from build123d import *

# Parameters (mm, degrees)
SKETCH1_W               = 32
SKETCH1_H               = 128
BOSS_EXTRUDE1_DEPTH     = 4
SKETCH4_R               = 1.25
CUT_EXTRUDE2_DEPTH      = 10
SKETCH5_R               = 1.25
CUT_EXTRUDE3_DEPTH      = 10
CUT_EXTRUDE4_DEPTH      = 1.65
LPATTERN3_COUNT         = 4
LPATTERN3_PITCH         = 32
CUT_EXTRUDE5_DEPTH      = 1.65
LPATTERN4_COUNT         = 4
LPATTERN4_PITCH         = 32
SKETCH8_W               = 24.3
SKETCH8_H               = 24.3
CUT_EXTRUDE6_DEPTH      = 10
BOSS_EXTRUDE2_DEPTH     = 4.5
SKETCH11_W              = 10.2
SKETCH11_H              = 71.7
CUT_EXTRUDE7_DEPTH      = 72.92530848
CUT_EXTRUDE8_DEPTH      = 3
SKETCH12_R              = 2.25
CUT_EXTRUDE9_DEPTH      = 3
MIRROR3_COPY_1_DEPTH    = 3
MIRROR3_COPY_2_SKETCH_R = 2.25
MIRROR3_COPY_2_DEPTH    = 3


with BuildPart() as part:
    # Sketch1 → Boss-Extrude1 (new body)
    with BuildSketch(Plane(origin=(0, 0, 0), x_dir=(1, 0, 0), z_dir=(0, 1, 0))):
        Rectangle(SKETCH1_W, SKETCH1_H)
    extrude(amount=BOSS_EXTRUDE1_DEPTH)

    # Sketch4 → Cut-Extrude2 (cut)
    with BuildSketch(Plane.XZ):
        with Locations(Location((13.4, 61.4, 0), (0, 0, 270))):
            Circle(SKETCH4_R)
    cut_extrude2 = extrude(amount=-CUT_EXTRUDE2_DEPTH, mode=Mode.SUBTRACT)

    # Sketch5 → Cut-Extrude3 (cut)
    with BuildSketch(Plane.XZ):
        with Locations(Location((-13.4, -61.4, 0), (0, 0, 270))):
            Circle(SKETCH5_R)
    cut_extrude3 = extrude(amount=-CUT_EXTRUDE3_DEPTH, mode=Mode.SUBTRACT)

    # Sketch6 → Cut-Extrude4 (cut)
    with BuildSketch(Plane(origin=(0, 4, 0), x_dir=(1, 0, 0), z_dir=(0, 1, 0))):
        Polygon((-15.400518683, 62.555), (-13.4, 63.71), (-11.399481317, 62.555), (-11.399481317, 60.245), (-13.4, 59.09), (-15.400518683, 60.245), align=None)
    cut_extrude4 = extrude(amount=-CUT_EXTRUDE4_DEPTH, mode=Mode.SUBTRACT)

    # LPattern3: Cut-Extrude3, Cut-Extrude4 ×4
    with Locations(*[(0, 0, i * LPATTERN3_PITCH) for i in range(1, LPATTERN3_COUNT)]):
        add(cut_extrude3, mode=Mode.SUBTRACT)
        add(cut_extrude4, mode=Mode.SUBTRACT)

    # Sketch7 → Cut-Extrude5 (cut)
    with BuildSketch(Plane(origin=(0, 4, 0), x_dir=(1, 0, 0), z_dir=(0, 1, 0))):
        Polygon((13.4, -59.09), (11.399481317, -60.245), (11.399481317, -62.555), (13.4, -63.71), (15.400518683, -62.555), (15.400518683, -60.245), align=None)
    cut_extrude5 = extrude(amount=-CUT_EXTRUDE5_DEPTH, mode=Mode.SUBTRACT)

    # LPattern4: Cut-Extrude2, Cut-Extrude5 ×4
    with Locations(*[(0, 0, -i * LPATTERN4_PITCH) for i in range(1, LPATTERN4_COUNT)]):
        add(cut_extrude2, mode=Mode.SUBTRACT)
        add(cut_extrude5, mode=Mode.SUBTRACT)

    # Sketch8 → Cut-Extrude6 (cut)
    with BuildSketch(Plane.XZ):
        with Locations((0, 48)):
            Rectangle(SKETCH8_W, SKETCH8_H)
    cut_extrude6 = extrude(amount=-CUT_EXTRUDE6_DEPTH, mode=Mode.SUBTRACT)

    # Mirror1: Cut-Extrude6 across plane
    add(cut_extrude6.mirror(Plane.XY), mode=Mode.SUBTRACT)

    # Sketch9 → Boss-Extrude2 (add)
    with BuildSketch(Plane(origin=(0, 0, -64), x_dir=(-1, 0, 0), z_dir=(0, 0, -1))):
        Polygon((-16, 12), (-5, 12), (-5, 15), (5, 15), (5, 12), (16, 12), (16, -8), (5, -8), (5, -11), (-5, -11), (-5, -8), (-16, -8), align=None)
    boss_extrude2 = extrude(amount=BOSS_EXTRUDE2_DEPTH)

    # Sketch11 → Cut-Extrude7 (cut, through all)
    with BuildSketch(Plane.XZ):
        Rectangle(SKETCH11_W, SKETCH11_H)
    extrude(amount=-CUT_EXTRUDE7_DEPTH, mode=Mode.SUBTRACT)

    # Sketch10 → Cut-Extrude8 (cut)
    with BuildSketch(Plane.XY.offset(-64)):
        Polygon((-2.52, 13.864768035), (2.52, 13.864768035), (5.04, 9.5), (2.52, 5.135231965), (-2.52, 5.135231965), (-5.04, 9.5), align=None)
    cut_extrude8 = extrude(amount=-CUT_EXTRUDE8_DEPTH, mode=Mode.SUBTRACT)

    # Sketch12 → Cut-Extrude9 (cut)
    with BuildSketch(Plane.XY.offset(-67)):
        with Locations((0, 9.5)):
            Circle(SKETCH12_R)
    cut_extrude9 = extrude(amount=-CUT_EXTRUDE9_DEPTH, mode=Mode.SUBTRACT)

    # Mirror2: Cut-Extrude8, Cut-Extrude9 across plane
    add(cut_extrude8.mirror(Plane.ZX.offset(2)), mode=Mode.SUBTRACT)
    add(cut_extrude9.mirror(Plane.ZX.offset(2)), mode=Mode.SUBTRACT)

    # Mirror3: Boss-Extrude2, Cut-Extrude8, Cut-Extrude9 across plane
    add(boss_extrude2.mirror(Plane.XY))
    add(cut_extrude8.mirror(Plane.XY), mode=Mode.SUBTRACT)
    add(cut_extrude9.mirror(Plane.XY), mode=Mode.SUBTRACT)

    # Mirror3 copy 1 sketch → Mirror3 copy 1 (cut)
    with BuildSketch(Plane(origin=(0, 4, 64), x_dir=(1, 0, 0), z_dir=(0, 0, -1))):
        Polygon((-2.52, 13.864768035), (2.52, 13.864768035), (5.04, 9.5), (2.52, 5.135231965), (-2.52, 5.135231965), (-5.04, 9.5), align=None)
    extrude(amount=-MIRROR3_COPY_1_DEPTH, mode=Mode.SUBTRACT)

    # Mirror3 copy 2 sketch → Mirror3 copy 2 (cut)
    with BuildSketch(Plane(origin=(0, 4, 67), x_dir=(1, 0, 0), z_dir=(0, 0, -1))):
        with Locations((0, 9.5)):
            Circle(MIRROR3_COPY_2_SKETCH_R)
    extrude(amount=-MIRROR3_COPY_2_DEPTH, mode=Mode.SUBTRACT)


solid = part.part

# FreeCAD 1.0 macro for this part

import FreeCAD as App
import Part
import Sketcher
from FreeCAD import Vector
Q = App.Units.Quantity


def add_polygon(sketch, points):
    """Adds a closed chain of lines whose ends are joined by coincident constraints."""
    first, n = sketch.GeometryCount, len(points)
    for a, b in zip(points, points[1:] + points[:1]):
        sketch.addGeometry(Part.LineSegment(App.Vector(*a, 0), App.Vector(*b, 0)), False)
    for i in range(n):
        sketch.addConstraint(Sketcher.Constraint("Coincident", first + i, 2, first + (i + 1) % n, 1))

doc = App.newDocument("Part")
params = doc.addObject("Spreadsheet::Sheet", "Params")
for row, (alias, value) in enumerate([
    ("sketch1_width", "32 mm"),
    ("sketch1_height", "128 mm"),
    ("pad1_length", "4 mm"),
    ("sketch2_diameter", "2.5 mm"),
    ("pocket1_length", "10 mm"),
    ("sketch3_diameter", "2.5 mm"),
    ("pocket2_length", "10 mm"),
    ("sketch4_height", "2.31 mm"),
    ("sketch4_length", "2.31 mm"),
    ("pocket3_length", "1.65 mm"),
    ("linearpattern_pitch", "32 mm"),
    ("sketch5_height", "2.31 mm"),
    ("sketch5_length", "2.31 mm"),
    ("pocket4_length", "1.65 mm"),
    ("linearpattern2_pitch", "32 mm"),
    ("sketch6_width", "24.3 mm"),
    ("pocket5_length", "10 mm"),
    ("sketch7_width", "11 mm"),
    ("sketch7_width2", "10 mm"),
    ("sketch7_height", "20 mm"),
    ("sketch7_height2", "3 mm"),
    ("pad2_length", "4.5 mm"),
    ("sketch8_width", "10.2 mm"),
    ("sketch8_height", "71.7 mm"),
    ("sketch9_width", "5.04 mm"),
    ("sketch9_length", "5.04 mm"),
    ("pocket7_length", "3 mm"),
    ("sketch10_diameter", "4.5 mm"),
    ("pocket8_length", "3 mm"),
    ("sketch11_width", "5.04 mm"),
    ("sketch11_length", "5.04 mm"),
    ("pocket9_length", "3 mm"),
    ("sketch12_diameter", "4.5 mm"),
    ("pocket10_length", "3 mm"),
], start=1):
    params.set(f"A{row}", alias)
    params.set(f"B{row}", "=" + value)
    params.setAlias(f"B{row}", alias)

body = doc.addObject("PartDesign::Body", "Body")

# Sketch on XZ plane
sketch1 = body.newObject("Sketcher::SketchObject", "Sketch")
sketch1.AttachmentSupport = (doc.getObject("XZ_Plane"), [""])
sketch1.MapMode = "FlatFace"
add_polygon(sketch1, [(-16, -64), (-16, 64), (16, 64), (16, -64)])  # lines 0-3
sketch1.addConstraint(Sketcher.Constraint("Vertical", 0))
sketch1.addConstraint(Sketcher.Constraint("Horizontal", 1))
sketch1.addConstraint(Sketcher.Constraint("Vertical", 2))
sketch1.addConstraint(Sketcher.Constraint("Horizontal", 3))
sketch1.addConstraint(Sketcher.Constraint("Symmetric", 0, 2, 2, 2, -1, 1))
sketch1.addConstraint(Sketcher.Constraint("DistanceX", 1, 1, 1, 2, 32.0))
sketch1.addConstraint(Sketcher.Constraint("DistanceY", 0, 1, 0, 2, 128.0))
sketch1.setExpression("Constraints[9]", "Params.sketch1_width")
sketch1.setExpression("Constraints[10]", "Params.sketch1_height")
pad1 = body.newObject("PartDesign::Pad", "Pad")
pad1.Profile = sketch1
pad1.setExpression("Length", "Params.pad1_length")
pad1.Reversed = True

# Sketch on XZ plane
sketch2 = body.newObject("Sketcher::SketchObject", "Sketch001")
sketch2.AttachmentSupport = (doc.getObject("XZ_Plane"), [""])
sketch2.MapMode = "FlatFace"
sketch2.addGeometry(Part.Circle(Vector(13.4, 61.4, 0), Vector(0, 0, 1), 1.2), False)
sketch2.addConstraint(Sketcher.Constraint("Diameter", 0, 2.5))
sketch2.addConstraint(Sketcher.Constraint("DistanceX", -1, 1, 0, 3, 13.4))
sketch2.addConstraint(Sketcher.Constraint("DistanceY", -1, 1, 0, 3, 61.4))
sketch2.setExpression("Constraints[0]", "Params.sketch2_diameter")
pocket1 = body.newObject("PartDesign::Pocket", "Pocket")
pocket1.Profile = sketch2
pocket1.setExpression("Length", "Params.pocket1_length")

# Sketch on XZ plane
sketch3 = body.newObject("Sketcher::SketchObject", "Sketch002")
sketch3.AttachmentSupport = (doc.getObject("XZ_Plane"), [""])
sketch3.MapMode = "FlatFace"
sketch3.addGeometry(Part.Circle(Vector(-13.4, -61.4, 0), Vector(0, 0, 1), 1.2), False)
sketch3.addConstraint(Sketcher.Constraint("Diameter", 0, 2.5))
sketch3.addConstraint(Sketcher.Constraint("DistanceX", 0, 3, -1, 1, 13.4))
sketch3.addConstraint(Sketcher.Constraint("DistanceY", 0, 3, -1, 1, 61.4))
sketch3.setExpression("Constraints[0]", "Params.sketch3_diameter")
pocket2 = body.newObject("PartDesign::Pocket", "Pocket001")
pocket2.Profile = sketch3
pocket2.setExpression("Length", "Params.pocket2_length")

# Sketch on XZ plane
sketch4 = body.newObject("Sketcher::SketchObject", "Sketch003")
sketch4.AttachmentSupport = (doc.getObject("XZ_Plane"), [""])
sketch4.MapMode = "FlatFace"
sketch4.AttachmentOffset = App.Placement(Vector(0, 0, -4), App.Rotation())
add_polygon(sketch4, [(-13.4, -63.7), (-15.4, -62.6), (-15.4, -60.2), (-13.4, -59.1), (-11.4, -60.2), (-11.4, -62.6)])  # lines 0-5
sketch4.addConstraint(Sketcher.Constraint("Vertical", 1))
sketch4.addConstraint(Sketcher.Constraint("Vertical", 4))
sketch4.addConstraint(Sketcher.Constraint("Parallel", 0, 3))
sketch4.addConstraint(Sketcher.Constraint("Parallel", 2, 5))
sketch4.addConstraint(Sketcher.Constraint("Horizontal", 1, 2, 3, 2))
sketch4.addConstraint(Sketcher.Constraint("Horizontal", 0, 2, 4, 2))
sketch4.addConstraint(Sketcher.Constraint("Vertical", 2, 2, 5, 2))
sketch4.addConstraint(Sketcher.Constraint("Angle", 0, Q("150 deg")))
sketch4.addConstraint(Sketcher.Constraint("DistanceY", 1, 1, 1, 2, 2.31))
sketch4.addConstraint(Sketcher.Constraint("DistanceX", 2, 2, -1, 1, 13.4))
sketch4.addConstraint(Sketcher.Constraint("Distance", 0, 2.31))
sketch4.addConstraint(Sketcher.Constraint("DistanceY", 2, 2, -1, 1, 59.09))
sketch4.setExpression("Constraints[14]", "Params.sketch4_height")
sketch4.setExpression("Constraints[16]", "Params.sketch4_length")
pocket3 = body.newObject("PartDesign::Pocket", "Pocket002")
pocket3.Profile = sketch4
pocket3.setExpression("Length", "Params.pocket3_length")
pocket3.Reversed = True
doc.recompute()

linearpattern = body.newObject("PartDesign::LinearPattern", "LinearPattern")
linearpattern.Originals = [pocket2, pocket3]
linearpattern.Direction = (doc.getObject("Z_Axis"), [""])
linearpattern.Mode = "offset"
linearpattern.setExpression("Offset", "Params.linearpattern_pitch")
linearpattern.Occurrences = 4
body.Tip = linearpattern

# Sketch on XZ plane
sketch5 = body.newObject("Sketcher::SketchObject", "Sketch004")
sketch5.AttachmentSupport = (doc.getObject("XZ_Plane"), [""])
sketch5.MapMode = "FlatFace"
sketch5.AttachmentOffset = App.Placement(Vector(0, 0, -4), App.Rotation())
add_polygon(sketch5, [(13.4, 59.1), (11.4, 60.2), (11.4, 62.6), (13.4, 63.7), (15.4, 62.6), (15.4, 60.2)])  # lines 0-5
sketch5.addConstraint(Sketcher.Constraint("Vertical", 1))
sketch5.addConstraint(Sketcher.Constraint("Vertical", 4))
sketch5.addConstraint(Sketcher.Constraint("Parallel", 0, 3))
sketch5.addConstraint(Sketcher.Constraint("Parallel", 2, 5))
sketch5.addConstraint(Sketcher.Constraint("Horizontal", 1, 2, 3, 2))
sketch5.addConstraint(Sketcher.Constraint("Horizontal", 0, 2, 4, 2))
sketch5.addConstraint(Sketcher.Constraint("Vertical", 2, 2, 5, 2))
sketch5.addConstraint(Sketcher.Constraint("Angle", 0, Q("150 deg")))
sketch5.addConstraint(Sketcher.Constraint("DistanceY", 1, 1, 1, 2, 2.31))
sketch5.addConstraint(Sketcher.Constraint("DistanceX", -1, 1, 2, 2, 13.4))
sketch5.addConstraint(Sketcher.Constraint("Distance", 0, 2.31))
sketch5.addConstraint(Sketcher.Constraint("DistanceY", -1, 1, 2, 2, 63.71))
sketch5.setExpression("Constraints[14]", "Params.sketch5_height")
sketch5.setExpression("Constraints[16]", "Params.sketch5_length")
pocket4 = body.newObject("PartDesign::Pocket", "Pocket003")
pocket4.Profile = sketch5
pocket4.setExpression("Length", "Params.pocket4_length")
pocket4.Reversed = True
doc.recompute()

linearpattern2 = body.newObject("PartDesign::LinearPattern", "LinearPattern001")
linearpattern2.Originals = [pocket1, pocket4]
linearpattern2.Direction = (doc.getObject("Z_Axis"), [""])
linearpattern2.Mode = "offset"
linearpattern2.setExpression("Offset", "Params.linearpattern2_pitch")
linearpattern2.Occurrences = 4
linearpattern2.Reversed = True
body.Tip = linearpattern2

# Sketch on XZ plane
sketch6 = body.newObject("Sketcher::SketchObject", "Sketch005")
sketch6.AttachmentSupport = (doc.getObject("XZ_Plane"), [""])
sketch6.MapMode = "FlatFace"
add_polygon(sketch6, [(-12, 60), (-12, 36), (12, 36), (12, 60)])  # lines 0-3
sketch6.addConstraint(Sketcher.Constraint("Vertical", 0))
sketch6.addConstraint(Sketcher.Constraint("Horizontal", 1))
sketch6.addConstraint(Sketcher.Constraint("Vertical", 2))
sketch6.addConstraint(Sketcher.Constraint("Horizontal", 3))
sketch6.addConstraint(Sketcher.Constraint("Equal", 3, 0))
sketch6.addConstraint(Sketcher.Constraint("DistanceX", 1, 1, 1, 2, 24.3))
sketch6.addConstraint(Sketcher.Constraint("DistanceX", 0, 2, -1, 1, 12.15))
sketch6.addConstraint(Sketcher.Constraint("DistanceY", -1, 1, 0, 2, 35.85))
sketch6.setExpression("Constraints[9]", "Params.sketch6_width")
pocket5 = body.newObject("PartDesign::Pocket", "Pocket004")
pocket5.Profile = sketch6
pocket5.setExpression("Length", "Params.pocket5_length")
doc.recompute()

mirrored = body.newObject("PartDesign::Mirrored", "Mirrored")
mirrored.Originals = [pocket5]
mirrored.MirrorPlane = (doc.getObject("XY_Plane"), [""])
body.Tip = mirrored

# Sketch on XY plane
sketch7 = body.newObject("Sketcher::SketchObject", "Sketch006")
sketch7.AttachmentSupport = (doc.getObject("XY_Plane"), [""])
sketch7.MapMode = "FlatFace"
sketch7.AttachmentOffset = App.Placement(Vector(0, 0, -64), App.Rotation())
add_polygon(sketch7, [(5, 12), (16, 12), (16, -8), (5, -8), (5, -11), (-5, -11), (-5, -8), (-16, -8), (-16, 12), (-5, 12), (-5, 15), (5, 15)])  # lines 0-11
sketch7.addConstraint(Sketcher.Constraint("Horizontal", 0))
sketch7.addConstraint(Sketcher.Constraint("Vertical", 1))
sketch7.addConstraint(Sketcher.Constraint("Horizontal", 2))
sketch7.addConstraint(Sketcher.Constraint("Vertical", 3))
sketch7.addConstraint(Sketcher.Constraint("Horizontal", 4))
sketch7.addConstraint(Sketcher.Constraint("Vertical", 5))
sketch7.addConstraint(Sketcher.Constraint("Horizontal", 6))
sketch7.addConstraint(Sketcher.Constraint("Vertical", 7))
sketch7.addConstraint(Sketcher.Constraint("Horizontal", 8))
sketch7.addConstraint(Sketcher.Constraint("Vertical", 9))
sketch7.addConstraint(Sketcher.Constraint("Horizontal", 10))
sketch7.addConstraint(Sketcher.Constraint("Vertical", 11))
sketch7.addConstraint(Sketcher.Constraint("Symmetric", 2, 2, 5, 2, -2))
sketch7.addConstraint(Sketcher.Constraint("Symmetric", 0, 2, 7, 2, -2))
sketch7.addConstraint(Sketcher.Constraint("Vertical", 5, 2, 8, 2))
sketch7.addConstraint(Sketcher.Constraint("Vertical", 3, 2, 10, 2))
sketch7.addConstraint(Sketcher.Constraint("Equal", 5, 9))
sketch7.addConstraint(Sketcher.Constraint("DistanceX", 0, 1, 0, 2, 11.0))
sketch7.addConstraint(Sketcher.Constraint("DistanceX", 4, 2, 4, 1, 10.0))
sketch7.addConstraint(Sketcher.Constraint("DistanceY", 1, 2, 1, 1, 20.0))
sketch7.addConstraint(Sketcher.Constraint("DistanceY", 3, 2, 3, 1, 3.0))
sketch7.addConstraint(Sketcher.Constraint("DistanceY", -1, 1, 0, 2, 12.0))
sketch7.setExpression("Constraints[29]", "Params.sketch7_width")
sketch7.setExpression("Constraints[30]", "Params.sketch7_width2")
sketch7.setExpression("Constraints[31]", "Params.sketch7_height")
sketch7.setExpression("Constraints[32]", "Params.sketch7_height2")
pad2 = body.newObject("PartDesign::Pad", "Pad001")
pad2.Profile = sketch7
pad2.setExpression("Length", "Params.pad2_length")
pad2.Reversed = True

# Sketch on XZ plane
sketch8 = body.newObject("Sketcher::SketchObject", "Sketch007")
sketch8.AttachmentSupport = (doc.getObject("XZ_Plane"), [""])
sketch8.MapMode = "FlatFace"
add_polygon(sketch8, [(-5, 36), (-5, -36), (5, -36), (5, 36)])  # lines 0-3
sketch8.addConstraint(Sketcher.Constraint("Vertical", 0))
sketch8.addConstraint(Sketcher.Constraint("Horizontal", 1))
sketch8.addConstraint(Sketcher.Constraint("Vertical", 2))
sketch8.addConstraint(Sketcher.Constraint("Horizontal", 3))
sketch8.addConstraint(Sketcher.Constraint("Symmetric", 0, 2, 2, 2, -1, 1))
sketch8.addConstraint(Sketcher.Constraint("DistanceX", 1, 1, 1, 2, 10.2))
sketch8.addConstraint(Sketcher.Constraint("DistanceY", 0, 2, 0, 1, 71.7))
sketch8.setExpression("Constraints[9]", "Params.sketch8_width")
sketch8.setExpression("Constraints[10]", "Params.sketch8_height")
pocket6 = body.newObject("PartDesign::Pocket", "Pocket005")
pocket6.Profile = sketch8
pocket6.Type = "ThroughAll"

# Sketch on XY plane
sketch9 = body.newObject("Sketcher::SketchObject", "Sketch008")
sketch9.AttachmentSupport = (doc.getObject("XY_Plane"), [""])
sketch9.MapMode = "FlatFace"
sketch9.AttachmentOffset = App.Placement(Vector(0, 0, -64), App.Rotation())
add_polygon(sketch9, [(3, 14), (-3, 14), (-5, 10), (-3, 5), (3, 5), (5, 10)])  # lines 0-5
sketch9.addConstraint(Sketcher.Constraint("Horizontal", 0))
sketch9.addConstraint(Sketcher.Constraint("Horizontal", 3))
sketch9.addConstraint(Sketcher.Constraint("Symmetric", 1, 2, 4, 2, -2))
sketch9.addConstraint(Sketcher.Constraint("Parallel", 1, 4))
sketch9.addConstraint(Sketcher.Constraint("Parallel", 2, 5))
sketch9.addConstraint(Sketcher.Constraint("Vertical", 0, 2, 2, 2))
sketch9.addConstraint(Sketcher.Constraint("Vertical", 3, 2, 5, 2))
sketch9.addConstraint(Sketcher.Constraint("Angle", 1, Q("-120 deg")))
sketch9.addConstraint(Sketcher.Constraint("DistanceX", 0, 2, 0, 1, 5.04))
sketch9.addConstraint(Sketcher.Constraint("DistanceY", -1, 1, 1, 2, 9.5))
sketch9.addConstraint(Sketcher.Constraint("Distance", 1, 5.04))
sketch9.setExpression("Constraints[14]", "Params.sketch9_width")
sketch9.setExpression("Constraints[16]", "Params.sketch9_length")
pocket7 = body.newObject("PartDesign::Pocket", "Pocket006")
pocket7.Profile = sketch9
pocket7.setExpression("Length", "Params.pocket7_length")

# Sketch on XY plane
sketch10 = body.newObject("Sketcher::SketchObject", "Sketch009")
sketch10.AttachmentSupport = (doc.getObject("XY_Plane"), [""])
sketch10.MapMode = "FlatFace"
sketch10.AttachmentOffset = App.Placement(Vector(0, 0, -67), App.Rotation())
sketch10.addGeometry(Part.Circle(Vector(0, 9.5, 0), Vector(0, 0, 1), 2.2), False)
sketch10.addConstraint(Sketcher.Constraint("PointOnObject", 0, 3, -2))
sketch10.addConstraint(Sketcher.Constraint("Diameter", 0, 4.5))
sketch10.addConstraint(Sketcher.Constraint("DistanceY", -1, 1, 0, 3, 9.5))
sketch10.setExpression("Constraints[1]", "Params.sketch10_diameter")
pocket8 = body.newObject("PartDesign::Pocket", "Pocket007")
pocket8.Profile = sketch10
pocket8.setExpression("Length", "Params.pocket8_length")
doc.recompute()

datumplane = body.newObject("PartDesign::Plane", "DatumPlane")
datumplane.AttachmentSupport = (doc.getObject("XZ_Plane"), [""])
datumplane.MapMode = "FlatFace"
datumplane.AttachmentOffset = App.Placement(Vector(0, 0, -2), App.Rotation())
mirrored2 = body.newObject("PartDesign::Mirrored", "Mirrored001")
mirrored2.Originals = [pocket7, pocket8]
mirrored2.MirrorPlane = (datumplane, [""])
body.Tip = mirrored2
doc.recompute()

mirrored3 = body.newObject("PartDesign::Mirrored", "Mirrored002")
mirrored3.Originals = [pad2, pocket7, pocket8]
mirrored3.MirrorPlane = (doc.getObject("XY_Plane"), [""])
body.Tip = mirrored3

# Sketch on XY plane
sketch11 = body.newObject("Sketcher::SketchObject", "Sketch010")
sketch11.AttachmentSupport = (doc.getObject("XY_Plane"), [""])
sketch11.MapMode = "FlatFace"
sketch11.AttachmentOffset = App.Placement(Vector(0, 0, 64), App.Rotation())
add_polygon(sketch11, [(3, -10), (-3, -10), (-5, -6), (-3, -1), (3, -1), (5, -6)])  # lines 0-5
sketch11.addConstraint(Sketcher.Constraint("Horizontal", 0))
sketch11.addConstraint(Sketcher.Constraint("Horizontal", 3))
sketch11.addConstraint(Sketcher.Constraint("Symmetric", 1, 2, 4, 2, -2))
sketch11.addConstraint(Sketcher.Constraint("Parallel", 1, 4))
sketch11.addConstraint(Sketcher.Constraint("Parallel", 2, 5))
sketch11.addConstraint(Sketcher.Constraint("Vertical", 0, 2, 2, 2))
sketch11.addConstraint(Sketcher.Constraint("Vertical", 3, 2, 5, 2))
sketch11.addConstraint(Sketcher.Constraint("Angle", 1, Q("120 deg")))
sketch11.addConstraint(Sketcher.Constraint("DistanceX", 0, 2, 0, 1, 5.04))
sketch11.addConstraint(Sketcher.Constraint("DistanceY", 1, 2, -1, 1, 5.5))
sketch11.addConstraint(Sketcher.Constraint("Distance", 1, 5.04))
sketch11.setExpression("Constraints[14]", "Params.sketch11_width")
sketch11.setExpression("Constraints[16]", "Params.sketch11_length")
pocket9 = body.newObject("PartDesign::Pocket", "Pocket008")
pocket9.Profile = sketch11
pocket9.setExpression("Length", "Params.pocket9_length")
pocket9.Reversed = True

# Sketch on XY plane
sketch12 = body.newObject("Sketcher::SketchObject", "Sketch011")
sketch12.AttachmentSupport = (doc.getObject("XY_Plane"), [""])
sketch12.MapMode = "FlatFace"
sketch12.AttachmentOffset = App.Placement(Vector(0, 0, 67), App.Rotation())
sketch12.addGeometry(Part.Circle(Vector(0, -5.5, 0), Vector(0, 0, 1), 2.2), False)
sketch12.addConstraint(Sketcher.Constraint("PointOnObject", 0, 3, -2))
sketch12.addConstraint(Sketcher.Constraint("Diameter", 0, 4.5))
sketch12.addConstraint(Sketcher.Constraint("DistanceY", 0, 3, -1, 1, 5.5))
sketch12.setExpression("Constraints[1]", "Params.sketch12_diameter")
pocket10 = body.newObject("PartDesign::Pocket", "Pocket009")
pocket10.Profile = sketch12
pocket10.setExpression("Length", "Params.pocket10_length")
pocket10.Reversed = True

doc.recompute()
